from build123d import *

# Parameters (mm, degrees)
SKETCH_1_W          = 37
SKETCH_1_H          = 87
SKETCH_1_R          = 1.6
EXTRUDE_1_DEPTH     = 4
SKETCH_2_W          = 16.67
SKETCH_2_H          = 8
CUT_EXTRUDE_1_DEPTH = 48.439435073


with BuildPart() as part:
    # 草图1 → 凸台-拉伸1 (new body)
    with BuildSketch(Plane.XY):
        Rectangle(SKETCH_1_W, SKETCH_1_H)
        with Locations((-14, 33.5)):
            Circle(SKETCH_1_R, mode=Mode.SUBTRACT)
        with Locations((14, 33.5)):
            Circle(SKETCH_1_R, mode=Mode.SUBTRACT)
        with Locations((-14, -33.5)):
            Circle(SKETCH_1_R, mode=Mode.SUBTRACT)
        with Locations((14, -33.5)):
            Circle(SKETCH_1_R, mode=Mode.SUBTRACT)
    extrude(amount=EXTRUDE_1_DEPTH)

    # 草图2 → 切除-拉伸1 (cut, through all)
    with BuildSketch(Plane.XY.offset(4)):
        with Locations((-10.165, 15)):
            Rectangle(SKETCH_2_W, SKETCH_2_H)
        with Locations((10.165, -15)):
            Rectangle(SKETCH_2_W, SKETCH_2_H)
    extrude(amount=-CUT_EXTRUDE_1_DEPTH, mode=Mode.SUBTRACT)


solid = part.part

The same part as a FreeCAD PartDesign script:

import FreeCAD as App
import Part
import Sketcher
Q = App.Units.Quantity


def add_polygon(sketch, points):
    """Adds a closed chain of lines whose ends are joined by coincident constraints."""
    first, n = sketch.GeometryCount, len(points)
    for a, b in zip(points, points[1:] + points[:1]):
        sketch.addGeometry(Part.LineSegment(App.Vector(*a, 0), App.Vector(*b, 0)), False)
    for i in range(n):
        sketch.addConstraint(Sketcher.Constraint("Coincident", first + i, 2, first + (i + 1) % n, 1))

doc = App.newDocument("Part")
body = doc.addObject("PartDesign::Body", "Body")

sketch1 = doc.addObject("Sketcher::SketchObject", "Sketch")
body.addObject(sketch1)
sketch1.AttachmentSupport = (doc.XY_Plane, [""])
sketch1.MapMode = "FlatFace"
add_polygon(sketch1, [(-18.5, 43.5), (-18.5, -43.5), (18.5, -43.5), (18.5, 43.5)])
sketch1.addGeometry(Part.Circle(App.Vector(-14, -33.5, 0), App.Vector(0, 0, 1), 1.6), False)
sketch1.addGeometry(Part.Circle(App.Vector(14, -33.5, 0), App.Vector(0, 0, 1), 1.6), False)
sketch1.addGeometry(Part.Circle(App.Vector(-14, 33.5, 0), App.Vector(0, 0, 1), 1.6), False)
sketch1.addGeometry(Part.Circle(App.Vector(14, 33.5, 0), App.Vector(0, 0, 1), 1.6), False)
sketch1.addConstraint(Sketcher.Constraint("Vertical", 0))
sketch1.addConstraint(Sketcher.Constraint("Horizontal", 1))
sketch1.addConstraint(Sketcher.Constraint("Vertical", 2))
sketch1.addConstraint(Sketcher.Constraint("Horizontal", 3))
sketch1.addConstraint(Sketcher.Constraint("Equal", 4, 5))
sketch1.addConstraint(Sketcher.Constraint("Equal", 5, 6))
sketch1.addConstraint(Sketcher.Constraint("Equal", 6, 7))
sketch1.addConstraint(Sketcher.Constraint("Symmetric", 5, 3, 6, 3, -1, 1))
sketch1.addConstraint(Sketcher.Constraint("Symmetric", 4, 3, 7, 3, -1, 1))
sketch1.addConstraint(Sketcher.Constraint("Symmetric", 0, 2, 2, 2, -1, 1))
sketch1.addConstraint(Sketcher.Constraint("Symmetric", 4, 3, 5, 3, -2))
sketch1.addConstraint(Sketcher.Constraint("Diameter", 4, Q("3.2 mm")))
sketch1.addConstraint(Sketcher.Constraint("DistanceX", 1, 1, 1, 2, Q("37 mm")))
sketch1.addConstraint(Sketcher.Constraint("DistanceY", 0, 2, 0, 1, Q("87 mm")))
sketch1.addConstraint(Sketcher.Constraint("DistanceX", 4, 3, -1, 1, Q("14 mm")))
sketch1.addConstraint(Sketcher.Constraint("DistanceY", 4, 3, 6, 3, Q("67 mm")))
pad1 = doc.addObject("PartDesign::Pad", "Pad")
body.addObject(pad1)
pad1.Profile = sketch1
pad1.Length = 4

sketch2 = doc.addObject("Sketcher::SketchObject", "Sketch001")
body.addObject(sketch2)
sketch2.AttachmentSupport = (doc.XY_Plane, [""])
sketch2.MapMode = "FlatFace"
sketch2.AttachmentOffset = App.Placement(App.Vector(0, 0, 4), App.Rotation())
add_polygon(sketch2, [(-18, 19), (-18, 11), (-2, 11), (-2, 19)])
add_polygon(sketch2, [(2, -11), (2, -19), (18, -19), (18, -11)])
sketch2.addConstraint(Sketcher.Constraint("Vertical", 0))
sketch2.addConstraint(Sketcher.Constraint("Horizontal", 1))
sketch2.addConstraint(Sketcher.Constraint("Vertical", 2))
sketch2.addConstraint(Sketcher.Constraint("Horizontal", 3))
sketch2.addConstraint(Sketcher.Constraint("Vertical", 4))
sketch2.addConstraint(Sketcher.Constraint("Horizontal", 5))
sketch2.addConstraint(Sketcher.Constraint("Vertical", 6))
sketch2.addConstraint(Sketcher.Constraint("Horizontal", 7))
sketch2.addConstraint(Sketcher.Constraint("Symmetric", 2, 2, 4, 2, -1, 1))
sketch2.addConstraint(Sketcher.Constraint("Symmetric", 0, 2, 6, 2, -1, 1))
sketch2.addConstraint(Sketcher.Constraint("DistanceY", 0, 2, 0, 1, Q("8 mm")))
sketch2.addConstraint(Sketcher.Constraint("DistanceY", -1, 1, 0, 2, Q("11 mm")))
sketch2.addConstraint(Sketcher.Constraint("DistanceX", 0, 2, 5, 2, Q("37 mm")))
sketch2.addConstraint(Sketcher.Constraint("DistanceX", 1, 1, 1, 2, Q("16.67 mm")))
pocket1 = doc.addObject("PartDesign::Pocket", "Pocket")
body.addObject(pocket1)
pocket1.Profile = sketch2
pocket1.Type = "ThroughAll"

doc.recompute()
